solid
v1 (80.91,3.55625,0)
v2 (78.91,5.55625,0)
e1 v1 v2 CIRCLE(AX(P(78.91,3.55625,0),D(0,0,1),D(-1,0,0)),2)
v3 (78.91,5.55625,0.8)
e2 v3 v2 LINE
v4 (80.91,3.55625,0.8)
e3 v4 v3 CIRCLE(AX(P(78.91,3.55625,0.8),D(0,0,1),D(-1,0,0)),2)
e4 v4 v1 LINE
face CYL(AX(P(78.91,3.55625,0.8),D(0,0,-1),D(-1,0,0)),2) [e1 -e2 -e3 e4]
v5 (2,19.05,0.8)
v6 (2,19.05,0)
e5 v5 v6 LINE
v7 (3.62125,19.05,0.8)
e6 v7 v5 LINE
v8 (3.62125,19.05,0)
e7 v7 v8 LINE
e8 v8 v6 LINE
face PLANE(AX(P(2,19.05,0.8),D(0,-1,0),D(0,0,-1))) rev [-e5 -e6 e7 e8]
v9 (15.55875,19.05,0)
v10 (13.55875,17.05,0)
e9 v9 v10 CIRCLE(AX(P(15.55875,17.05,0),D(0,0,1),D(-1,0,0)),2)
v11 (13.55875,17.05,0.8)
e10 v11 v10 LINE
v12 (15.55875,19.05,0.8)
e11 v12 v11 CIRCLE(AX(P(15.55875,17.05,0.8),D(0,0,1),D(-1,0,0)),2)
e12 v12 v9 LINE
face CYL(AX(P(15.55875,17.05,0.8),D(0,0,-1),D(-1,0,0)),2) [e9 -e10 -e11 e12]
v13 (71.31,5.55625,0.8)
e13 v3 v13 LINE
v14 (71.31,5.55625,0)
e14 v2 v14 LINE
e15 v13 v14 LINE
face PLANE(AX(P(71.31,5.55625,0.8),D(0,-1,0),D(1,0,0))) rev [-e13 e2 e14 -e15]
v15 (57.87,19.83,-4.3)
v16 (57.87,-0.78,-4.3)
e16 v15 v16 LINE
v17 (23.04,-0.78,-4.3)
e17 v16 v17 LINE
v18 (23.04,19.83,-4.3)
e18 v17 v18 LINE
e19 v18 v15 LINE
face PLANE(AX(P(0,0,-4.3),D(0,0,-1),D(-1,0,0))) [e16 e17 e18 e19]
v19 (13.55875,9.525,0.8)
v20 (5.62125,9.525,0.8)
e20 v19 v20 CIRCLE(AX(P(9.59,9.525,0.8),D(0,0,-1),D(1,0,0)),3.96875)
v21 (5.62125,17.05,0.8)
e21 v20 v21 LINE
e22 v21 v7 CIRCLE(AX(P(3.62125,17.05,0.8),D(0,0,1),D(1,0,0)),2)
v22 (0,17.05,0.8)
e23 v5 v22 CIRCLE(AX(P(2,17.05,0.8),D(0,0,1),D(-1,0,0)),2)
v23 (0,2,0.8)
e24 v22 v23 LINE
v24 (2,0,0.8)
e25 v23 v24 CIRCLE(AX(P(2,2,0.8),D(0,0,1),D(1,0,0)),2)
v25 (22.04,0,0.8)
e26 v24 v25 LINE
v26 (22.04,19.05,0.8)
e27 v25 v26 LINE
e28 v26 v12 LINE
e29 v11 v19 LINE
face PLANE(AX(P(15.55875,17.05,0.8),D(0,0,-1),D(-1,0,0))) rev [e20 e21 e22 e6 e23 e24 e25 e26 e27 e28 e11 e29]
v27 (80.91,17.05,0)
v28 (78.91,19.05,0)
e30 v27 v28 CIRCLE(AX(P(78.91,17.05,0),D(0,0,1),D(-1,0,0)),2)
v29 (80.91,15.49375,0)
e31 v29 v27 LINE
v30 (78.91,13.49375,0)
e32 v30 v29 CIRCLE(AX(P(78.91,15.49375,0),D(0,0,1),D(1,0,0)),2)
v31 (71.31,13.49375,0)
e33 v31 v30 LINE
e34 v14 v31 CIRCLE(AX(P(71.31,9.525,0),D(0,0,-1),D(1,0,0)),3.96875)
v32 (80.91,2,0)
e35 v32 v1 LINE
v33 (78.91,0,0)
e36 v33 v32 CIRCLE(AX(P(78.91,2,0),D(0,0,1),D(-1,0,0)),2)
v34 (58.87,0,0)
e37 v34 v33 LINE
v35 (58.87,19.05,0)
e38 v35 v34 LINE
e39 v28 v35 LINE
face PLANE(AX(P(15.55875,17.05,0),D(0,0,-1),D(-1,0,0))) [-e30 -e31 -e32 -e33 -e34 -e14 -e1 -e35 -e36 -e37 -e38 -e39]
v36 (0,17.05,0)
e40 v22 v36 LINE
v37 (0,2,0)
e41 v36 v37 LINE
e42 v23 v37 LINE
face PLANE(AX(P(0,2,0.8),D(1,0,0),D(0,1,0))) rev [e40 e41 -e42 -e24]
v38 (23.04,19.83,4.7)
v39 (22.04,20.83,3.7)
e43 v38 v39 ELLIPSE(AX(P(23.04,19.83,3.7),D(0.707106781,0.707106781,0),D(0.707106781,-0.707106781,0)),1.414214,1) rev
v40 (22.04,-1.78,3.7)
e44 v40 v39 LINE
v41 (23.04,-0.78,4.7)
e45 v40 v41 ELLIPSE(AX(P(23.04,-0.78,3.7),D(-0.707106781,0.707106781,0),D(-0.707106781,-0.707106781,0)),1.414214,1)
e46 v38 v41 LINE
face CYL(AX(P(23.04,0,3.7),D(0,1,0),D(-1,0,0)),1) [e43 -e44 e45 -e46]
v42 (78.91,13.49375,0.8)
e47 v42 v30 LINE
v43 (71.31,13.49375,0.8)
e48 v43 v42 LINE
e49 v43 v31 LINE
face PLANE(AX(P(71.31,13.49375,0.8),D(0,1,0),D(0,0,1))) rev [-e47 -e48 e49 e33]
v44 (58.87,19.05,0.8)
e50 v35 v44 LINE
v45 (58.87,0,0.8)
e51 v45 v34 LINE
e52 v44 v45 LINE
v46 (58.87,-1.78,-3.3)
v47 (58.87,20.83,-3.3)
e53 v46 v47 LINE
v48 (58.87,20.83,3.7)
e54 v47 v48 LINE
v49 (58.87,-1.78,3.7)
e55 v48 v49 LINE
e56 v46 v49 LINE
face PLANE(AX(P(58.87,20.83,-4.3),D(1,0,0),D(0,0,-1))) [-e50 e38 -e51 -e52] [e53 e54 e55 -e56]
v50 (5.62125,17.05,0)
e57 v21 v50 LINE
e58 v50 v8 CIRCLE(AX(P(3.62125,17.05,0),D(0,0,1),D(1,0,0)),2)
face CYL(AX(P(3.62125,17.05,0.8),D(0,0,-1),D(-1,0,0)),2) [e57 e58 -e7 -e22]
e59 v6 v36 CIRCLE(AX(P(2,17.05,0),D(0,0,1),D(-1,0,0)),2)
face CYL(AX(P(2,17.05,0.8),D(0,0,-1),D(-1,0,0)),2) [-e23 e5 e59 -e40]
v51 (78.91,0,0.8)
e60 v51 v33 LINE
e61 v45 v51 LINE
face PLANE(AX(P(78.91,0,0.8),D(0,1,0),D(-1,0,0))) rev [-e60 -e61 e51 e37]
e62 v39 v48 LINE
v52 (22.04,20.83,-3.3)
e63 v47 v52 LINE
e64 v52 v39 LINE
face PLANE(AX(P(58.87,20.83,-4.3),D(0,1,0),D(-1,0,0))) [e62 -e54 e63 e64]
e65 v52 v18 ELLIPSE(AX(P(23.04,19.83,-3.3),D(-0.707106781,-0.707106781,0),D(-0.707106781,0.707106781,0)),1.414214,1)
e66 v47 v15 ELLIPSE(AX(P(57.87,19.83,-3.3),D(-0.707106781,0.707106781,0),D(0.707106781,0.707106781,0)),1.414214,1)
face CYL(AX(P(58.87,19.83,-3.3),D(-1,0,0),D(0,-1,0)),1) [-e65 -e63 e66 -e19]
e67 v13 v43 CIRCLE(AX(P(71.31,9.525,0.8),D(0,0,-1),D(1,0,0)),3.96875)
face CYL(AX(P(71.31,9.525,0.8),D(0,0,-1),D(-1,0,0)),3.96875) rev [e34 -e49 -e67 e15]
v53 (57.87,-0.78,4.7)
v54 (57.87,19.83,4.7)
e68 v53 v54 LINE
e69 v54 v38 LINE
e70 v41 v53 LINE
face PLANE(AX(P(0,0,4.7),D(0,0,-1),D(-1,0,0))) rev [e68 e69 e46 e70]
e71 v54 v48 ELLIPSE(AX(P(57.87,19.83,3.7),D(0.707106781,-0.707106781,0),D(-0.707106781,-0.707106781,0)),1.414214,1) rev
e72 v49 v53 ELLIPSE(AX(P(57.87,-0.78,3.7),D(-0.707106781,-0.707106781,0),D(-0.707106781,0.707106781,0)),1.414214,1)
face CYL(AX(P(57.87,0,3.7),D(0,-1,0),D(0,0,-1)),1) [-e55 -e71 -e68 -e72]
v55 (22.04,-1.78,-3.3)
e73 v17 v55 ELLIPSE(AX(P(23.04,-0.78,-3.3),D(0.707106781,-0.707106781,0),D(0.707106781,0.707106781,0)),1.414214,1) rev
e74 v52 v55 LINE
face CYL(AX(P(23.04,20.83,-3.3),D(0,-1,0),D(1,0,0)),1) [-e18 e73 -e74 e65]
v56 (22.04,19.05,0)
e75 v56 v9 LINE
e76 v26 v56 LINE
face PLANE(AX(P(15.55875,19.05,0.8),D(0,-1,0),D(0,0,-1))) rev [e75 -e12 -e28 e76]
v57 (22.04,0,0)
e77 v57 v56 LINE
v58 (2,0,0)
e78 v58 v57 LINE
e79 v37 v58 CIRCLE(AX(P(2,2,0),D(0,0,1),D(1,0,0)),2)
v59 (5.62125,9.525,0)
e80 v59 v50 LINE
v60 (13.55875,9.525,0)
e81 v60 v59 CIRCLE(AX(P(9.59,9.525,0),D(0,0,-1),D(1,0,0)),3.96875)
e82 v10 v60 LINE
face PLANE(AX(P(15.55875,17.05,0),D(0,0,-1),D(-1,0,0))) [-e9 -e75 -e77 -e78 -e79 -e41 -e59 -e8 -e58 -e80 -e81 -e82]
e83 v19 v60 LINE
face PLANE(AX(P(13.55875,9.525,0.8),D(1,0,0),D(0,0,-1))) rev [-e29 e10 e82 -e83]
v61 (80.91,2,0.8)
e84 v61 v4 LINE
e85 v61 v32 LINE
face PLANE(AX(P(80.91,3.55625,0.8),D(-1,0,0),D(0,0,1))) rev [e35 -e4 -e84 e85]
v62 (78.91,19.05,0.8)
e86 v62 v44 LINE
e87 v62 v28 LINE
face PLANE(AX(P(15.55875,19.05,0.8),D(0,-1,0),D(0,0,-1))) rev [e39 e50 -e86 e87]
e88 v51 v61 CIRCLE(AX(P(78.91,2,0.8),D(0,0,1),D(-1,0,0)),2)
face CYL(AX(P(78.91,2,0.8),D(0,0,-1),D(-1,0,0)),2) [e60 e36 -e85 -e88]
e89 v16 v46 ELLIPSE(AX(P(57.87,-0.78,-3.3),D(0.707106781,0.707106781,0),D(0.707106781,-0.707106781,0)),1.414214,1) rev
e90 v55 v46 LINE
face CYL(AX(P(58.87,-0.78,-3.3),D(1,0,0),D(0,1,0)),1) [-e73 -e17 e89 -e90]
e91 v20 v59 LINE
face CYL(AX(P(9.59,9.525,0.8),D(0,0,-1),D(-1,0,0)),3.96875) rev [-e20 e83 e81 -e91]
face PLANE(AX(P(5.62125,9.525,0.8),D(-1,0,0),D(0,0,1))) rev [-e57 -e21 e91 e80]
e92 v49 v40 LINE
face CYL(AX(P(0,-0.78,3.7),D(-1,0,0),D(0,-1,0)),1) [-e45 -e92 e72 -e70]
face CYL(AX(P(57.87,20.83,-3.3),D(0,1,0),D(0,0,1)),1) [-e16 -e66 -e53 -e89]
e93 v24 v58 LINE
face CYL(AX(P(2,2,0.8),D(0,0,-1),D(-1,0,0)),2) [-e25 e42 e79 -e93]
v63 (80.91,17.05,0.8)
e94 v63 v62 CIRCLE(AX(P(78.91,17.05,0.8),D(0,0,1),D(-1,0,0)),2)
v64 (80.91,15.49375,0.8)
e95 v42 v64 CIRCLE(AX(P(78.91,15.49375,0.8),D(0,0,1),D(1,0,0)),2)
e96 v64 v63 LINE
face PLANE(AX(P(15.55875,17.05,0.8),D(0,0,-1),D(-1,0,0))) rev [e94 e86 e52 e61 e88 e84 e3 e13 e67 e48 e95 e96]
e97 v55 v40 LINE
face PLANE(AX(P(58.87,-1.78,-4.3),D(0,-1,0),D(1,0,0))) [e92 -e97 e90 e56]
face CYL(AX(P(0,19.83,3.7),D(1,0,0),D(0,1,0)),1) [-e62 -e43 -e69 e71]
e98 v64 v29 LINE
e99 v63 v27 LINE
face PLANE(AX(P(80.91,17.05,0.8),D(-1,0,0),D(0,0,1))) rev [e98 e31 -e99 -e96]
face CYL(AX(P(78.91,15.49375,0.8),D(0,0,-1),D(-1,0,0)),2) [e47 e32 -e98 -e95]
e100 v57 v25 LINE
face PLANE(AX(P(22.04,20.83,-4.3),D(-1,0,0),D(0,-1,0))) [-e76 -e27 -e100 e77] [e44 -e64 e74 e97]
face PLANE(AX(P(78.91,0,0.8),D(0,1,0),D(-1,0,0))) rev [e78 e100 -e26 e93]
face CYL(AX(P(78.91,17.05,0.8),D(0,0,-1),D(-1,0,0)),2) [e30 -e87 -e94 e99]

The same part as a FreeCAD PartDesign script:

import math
import FreeCAD as App
import Part
import Sketcher

V = App.Vector
Q = App.Units.Quantity


def edges_at(feature, points):
    """Names of the edges that pass closest to the given points."""
    edges = feature.Shape.Edges
    near = lambda p: min(range(len(edges)), key=lambda i: edges[i].distToShape(Part.Vertex(*p))[0])
    return sorted({f"Edge{near(p) + 1}" for p in points})

doc = App.newDocument("Part")
body = doc.addObject("PartDesign::Body", "Body")

# Sketch on XY plane
sketch1 = body.newObject("Sketcher::SketchObject", "Sketch")
sketch1.AttachmentSupport = (doc.getObject("XY_Plane"), [""])
sketch1.MapMode = "FlatFace"
sketch1.addGeometry([
    Part.LineSegment(V(0, 17.1, 0), V(0, 2, 0)),  # 0
    Part.ArcOfCircle(Part.Circle(V(2, 2, 0), V(0, 0, 1), 2), math.radians(-180), math.radians(-90)),  # 1
    Part.LineSegment(V(2, 0, 0), V(78.9, 0, 0)),  # 2
    Part.ArcOfCircle(Part.Circle(V(78.9, 2, 0), V(0, 0, 1), 2), math.radians(-90), math.radians(0)),  # 3
    Part.LineSegment(V(80.9, 2, 0), V(80.9, 3.6, 0)),  # 4
    Part.ArcOfCircle(Part.Circle(V(78.9, 3.6, 0), V(0, 0, 1), 2), math.radians(0), math.radians(90)),  # 5
    Part.LineSegment(V(78.9, 5.6, 0), V(71.3, 5.6, 0)),  # 6
    Part.ArcOfCircle(Part.Circle(V(71.3, 9.5, 0), V(0, 0, 1), 4), math.radians(90), math.radians(270)),  # 7
    Part.LineSegment(V(71.3, 13.5, 0), V(78.9, 13.5, 0)),  # 8
    Part.ArcOfCircle(Part.Circle(V(78.9, 15.5, 0), V(0, 0, 1), 2), math.radians(-90), math.radians(0)),  # 9
    Part.LineSegment(V(80.9, 15.5, 0), V(80.9, 17.1, 0)),  # 10
    Part.ArcOfCircle(Part.Circle(V(78.9, 17, 0), V(0, 0, 1), 2), math.radians(0), math.radians(90)),  # 11
    Part.LineSegment(V(78.9, 19.1, 0), V(15.6, 19.1, 0)),  # 12
    Part.ArcOfCircle(Part.Circle(V(15.6, 17, 0), V(0, 0, 1), 2), math.radians(90), math.radians(180)),  # 13
    Part.LineSegment(V(13.6, 17.1, 0), V(13.6, 9.5, 0)),  # 14
    Part.ArcOfCircle(Part.Circle(V(9.6, 9.5, 0), V(0, 0, 1), 4), math.radians(180), math.radians(360)),  # 15
    Part.LineSegment(V(5.6, 9.5, 0), V(5.6, 17.1, 0)),  # 16
    Part.ArcOfCircle(Part.Circle(V(3.6, 17, 0), V(0, 0, 1), 2), math.radians(0), math.radians(90)),  # 17
    Part.LineSegment(V(3.6, 19.1, 0), V(2, 19.1, 0)),  # 18
    Part.ArcOfCircle(Part.Circle(V(2, 17, 0), V(0, 0, 1), 2), math.radians(90), math.radians(180)),  # 19
], False)
sketch1.addConstraint([
    Sketcher.Constraint("Tangent", 0, 2, 1, 1),
    Sketcher.Constraint("Tangent", 1, 2, 2, 1),
    Sketcher.Constraint("Tangent", 2, 2, 3, 1),
    Sketcher.Constraint("Tangent", 3, 2, 4, 1),
    Sketcher.Constraint("Tangent", 4, 2, 5, 1),
    Sketcher.Constraint("Tangent", 5, 2, 6, 1),
    Sketcher.Constraint("Tangent", 6, 2, 7, 2),
    Sketcher.Constraint("Tangent", 7, 1, 8, 1),
    Sketcher.Constraint("Tangent", 8, 2, 9, 1),
    Sketcher.Constraint("Tangent", 9, 2, 10, 1),
    Sketcher.Constraint("Tangent", 10, 2, 11, 1),
    Sketcher.Constraint("Tangent", 11, 2, 12, 1),
    Sketcher.Constraint("Tangent", 12, 2, 13, 1),
    Sketcher.Constraint("Tangent", 13, 2, 14, 1),
    Sketcher.Constraint("Tangent", 14, 2, 15, 2),
    Sketcher.Constraint("Tangent", 15, 1, 16, 1),
    Sketcher.Constraint("Tangent", 16, 2, 17, 1),
    Sketcher.Constraint("Tangent", 17, 2, 18, 1),
    Sketcher.Constraint("Tangent", 18, 2, 19, 1),
    Sketcher.Constraint("Tangent", 19, 2, 0, 1),
    Sketcher.Constraint("Vertical", 0),
    Sketcher.Constraint("Horizontal", 2),
    Sketcher.Constraint("Vertical", 4),
    Sketcher.Constraint("Horizontal", 6),
    Sketcher.Constraint("Horizontal", 8),
    Sketcher.Constraint("Vertical", 10),
    Sketcher.Constraint("Horizontal", 12),
    Sketcher.Constraint("Vertical", 14),
    Sketcher.Constraint("Vertical", 16),
    Sketcher.Constraint("Horizontal", 18),
    Sketcher.Constraint("Equal", 1, 3),
    Sketcher.Constraint("Equal", 3, 5),
    Sketcher.Constraint("Equal", 5, 9),
    Sketcher.Constraint("Equal", 9, 11),
    Sketcher.Constraint("Equal", 11, 13),
    Sketcher.Constraint("Equal", 7, 15),
    Sketcher.Constraint("Equal", 13, 17),
    Sketcher.Constraint("Equal", 17, 19),
    Sketcher.Constraint("PointOnObject", 0, 2, -2),
    Sketcher.Constraint("PointOnObject", 1, 2, -1),
    Sketcher.Constraint("Horizontal", 7, 3, 15, 3),
    Sketcher.Constraint("Horizontal", 13, 3, 17, 3),
    Sketcher.Constraint("Vertical", 5, 3, 9, 3),
    Sketcher.Constraint("Equal", 4, 10),
    Sketcher.Constraint("Radius", 1, Q("2 mm")),
    Sketcher.Constraint("DistanceX", 6, 2, 6, 1, Q("7.6 mm")),
    Sketcher.Constraint("DistanceX", 2, 1, 2, 2, Q("76.91 mm")),
    Sketcher.Constraint("DistanceY", 0, 2, 0, 1, Q("15.05 mm")),
    Sketcher.Constraint("DistanceX", -1, 1, 15, 3, Q("9.59 mm")),
    Sketcher.Constraint("Radius", 7, Q("3.96875 mm")),
])
pad1 = body.newObject("PartDesign::Pad", "Pad")
pad1.Profile = sketch1
pad1.Length = 0.8

# Sketch on XY plane
sketch2 = body.newObject("Sketcher::SketchObject", "Sketch001")
sketch2.AttachmentSupport = (doc.getObject("XY_Plane"), [""])
sketch2.MapMode = "FlatFace"
sketch2.AttachmentOffset = App.Placement(V(0, 0, 0.8), App.Rotation())
sketch2.addGeometry([
    Part.LineSegment(V(22, 21, 0), V(22, -2, 0)),
    Part.LineSegment(V(22, -2, 0), V(59, -2, 0)),
    Part.LineSegment(V(59, -2, 0), V(59, 21, 0)),
    Part.LineSegment(V(59, 21, 0), V(22, 21, 0)),
], False)
sketch2.addConstraint([
    Sketcher.Constraint("Coincident", 0, 2, 1, 1),
    Sketcher.Constraint("Coincident", 1, 2, 2, 1),
    Sketcher.Constraint("Coincident", 2, 2, 3, 1),
    Sketcher.Constraint("Coincident", 3, 2, 0, 1),
    Sketcher.Constraint("Vertical", 0),
    Sketcher.Constraint("Horizontal", 1),
    Sketcher.Constraint("Vertical", 2),
    Sketcher.Constraint("Horizontal", 3),
    Sketcher.Constraint("DistanceX", 1, 1, 1, 2, Q("36.83 mm")),
    Sketcher.Constraint("DistanceY", 0, 2, 0, 1, Q("22.61 mm")),
    Sketcher.Constraint("DistanceX", -1, 1, 0, 2, Q("22.04 mm")),
    Sketcher.Constraint("DistanceY", 0, 2, -1, 1, Q("1.78 mm")),
])
pad2 = body.newObject("PartDesign::Pad", "Pad001")
pad2.Profile = sketch2
pad2.Type = "TwoLengths"
pad2.Length = 3.9
pad2.Length2 = 5.1
doc.recompute()

fillet = body.newObject("PartDesign::Fillet", "Fillet")
fillet.Base = (pad2, edges_at(pad2, [
    (22.04, 9.525, -4.3),
    (58.87, 9.525, -4.3),
    (40.455, 20.83, -4.3),
    (40.455, -1.78, -4.3),
]))
fillet.Radius = 1
doc.recompute()

fillet2 = body.newObject("PartDesign::Fillet", "Fillet001")
fillet2.Base = (fillet, edges_at(fillet, [
    (22.04, 9.525, 4.7),
    (40.455, -1.78, 4.7),
    (58.87, 9.525, 4.7),
    (40.455, 20.83, 4.7),
]))
fillet2.Radius = 1

doc.recompute()
